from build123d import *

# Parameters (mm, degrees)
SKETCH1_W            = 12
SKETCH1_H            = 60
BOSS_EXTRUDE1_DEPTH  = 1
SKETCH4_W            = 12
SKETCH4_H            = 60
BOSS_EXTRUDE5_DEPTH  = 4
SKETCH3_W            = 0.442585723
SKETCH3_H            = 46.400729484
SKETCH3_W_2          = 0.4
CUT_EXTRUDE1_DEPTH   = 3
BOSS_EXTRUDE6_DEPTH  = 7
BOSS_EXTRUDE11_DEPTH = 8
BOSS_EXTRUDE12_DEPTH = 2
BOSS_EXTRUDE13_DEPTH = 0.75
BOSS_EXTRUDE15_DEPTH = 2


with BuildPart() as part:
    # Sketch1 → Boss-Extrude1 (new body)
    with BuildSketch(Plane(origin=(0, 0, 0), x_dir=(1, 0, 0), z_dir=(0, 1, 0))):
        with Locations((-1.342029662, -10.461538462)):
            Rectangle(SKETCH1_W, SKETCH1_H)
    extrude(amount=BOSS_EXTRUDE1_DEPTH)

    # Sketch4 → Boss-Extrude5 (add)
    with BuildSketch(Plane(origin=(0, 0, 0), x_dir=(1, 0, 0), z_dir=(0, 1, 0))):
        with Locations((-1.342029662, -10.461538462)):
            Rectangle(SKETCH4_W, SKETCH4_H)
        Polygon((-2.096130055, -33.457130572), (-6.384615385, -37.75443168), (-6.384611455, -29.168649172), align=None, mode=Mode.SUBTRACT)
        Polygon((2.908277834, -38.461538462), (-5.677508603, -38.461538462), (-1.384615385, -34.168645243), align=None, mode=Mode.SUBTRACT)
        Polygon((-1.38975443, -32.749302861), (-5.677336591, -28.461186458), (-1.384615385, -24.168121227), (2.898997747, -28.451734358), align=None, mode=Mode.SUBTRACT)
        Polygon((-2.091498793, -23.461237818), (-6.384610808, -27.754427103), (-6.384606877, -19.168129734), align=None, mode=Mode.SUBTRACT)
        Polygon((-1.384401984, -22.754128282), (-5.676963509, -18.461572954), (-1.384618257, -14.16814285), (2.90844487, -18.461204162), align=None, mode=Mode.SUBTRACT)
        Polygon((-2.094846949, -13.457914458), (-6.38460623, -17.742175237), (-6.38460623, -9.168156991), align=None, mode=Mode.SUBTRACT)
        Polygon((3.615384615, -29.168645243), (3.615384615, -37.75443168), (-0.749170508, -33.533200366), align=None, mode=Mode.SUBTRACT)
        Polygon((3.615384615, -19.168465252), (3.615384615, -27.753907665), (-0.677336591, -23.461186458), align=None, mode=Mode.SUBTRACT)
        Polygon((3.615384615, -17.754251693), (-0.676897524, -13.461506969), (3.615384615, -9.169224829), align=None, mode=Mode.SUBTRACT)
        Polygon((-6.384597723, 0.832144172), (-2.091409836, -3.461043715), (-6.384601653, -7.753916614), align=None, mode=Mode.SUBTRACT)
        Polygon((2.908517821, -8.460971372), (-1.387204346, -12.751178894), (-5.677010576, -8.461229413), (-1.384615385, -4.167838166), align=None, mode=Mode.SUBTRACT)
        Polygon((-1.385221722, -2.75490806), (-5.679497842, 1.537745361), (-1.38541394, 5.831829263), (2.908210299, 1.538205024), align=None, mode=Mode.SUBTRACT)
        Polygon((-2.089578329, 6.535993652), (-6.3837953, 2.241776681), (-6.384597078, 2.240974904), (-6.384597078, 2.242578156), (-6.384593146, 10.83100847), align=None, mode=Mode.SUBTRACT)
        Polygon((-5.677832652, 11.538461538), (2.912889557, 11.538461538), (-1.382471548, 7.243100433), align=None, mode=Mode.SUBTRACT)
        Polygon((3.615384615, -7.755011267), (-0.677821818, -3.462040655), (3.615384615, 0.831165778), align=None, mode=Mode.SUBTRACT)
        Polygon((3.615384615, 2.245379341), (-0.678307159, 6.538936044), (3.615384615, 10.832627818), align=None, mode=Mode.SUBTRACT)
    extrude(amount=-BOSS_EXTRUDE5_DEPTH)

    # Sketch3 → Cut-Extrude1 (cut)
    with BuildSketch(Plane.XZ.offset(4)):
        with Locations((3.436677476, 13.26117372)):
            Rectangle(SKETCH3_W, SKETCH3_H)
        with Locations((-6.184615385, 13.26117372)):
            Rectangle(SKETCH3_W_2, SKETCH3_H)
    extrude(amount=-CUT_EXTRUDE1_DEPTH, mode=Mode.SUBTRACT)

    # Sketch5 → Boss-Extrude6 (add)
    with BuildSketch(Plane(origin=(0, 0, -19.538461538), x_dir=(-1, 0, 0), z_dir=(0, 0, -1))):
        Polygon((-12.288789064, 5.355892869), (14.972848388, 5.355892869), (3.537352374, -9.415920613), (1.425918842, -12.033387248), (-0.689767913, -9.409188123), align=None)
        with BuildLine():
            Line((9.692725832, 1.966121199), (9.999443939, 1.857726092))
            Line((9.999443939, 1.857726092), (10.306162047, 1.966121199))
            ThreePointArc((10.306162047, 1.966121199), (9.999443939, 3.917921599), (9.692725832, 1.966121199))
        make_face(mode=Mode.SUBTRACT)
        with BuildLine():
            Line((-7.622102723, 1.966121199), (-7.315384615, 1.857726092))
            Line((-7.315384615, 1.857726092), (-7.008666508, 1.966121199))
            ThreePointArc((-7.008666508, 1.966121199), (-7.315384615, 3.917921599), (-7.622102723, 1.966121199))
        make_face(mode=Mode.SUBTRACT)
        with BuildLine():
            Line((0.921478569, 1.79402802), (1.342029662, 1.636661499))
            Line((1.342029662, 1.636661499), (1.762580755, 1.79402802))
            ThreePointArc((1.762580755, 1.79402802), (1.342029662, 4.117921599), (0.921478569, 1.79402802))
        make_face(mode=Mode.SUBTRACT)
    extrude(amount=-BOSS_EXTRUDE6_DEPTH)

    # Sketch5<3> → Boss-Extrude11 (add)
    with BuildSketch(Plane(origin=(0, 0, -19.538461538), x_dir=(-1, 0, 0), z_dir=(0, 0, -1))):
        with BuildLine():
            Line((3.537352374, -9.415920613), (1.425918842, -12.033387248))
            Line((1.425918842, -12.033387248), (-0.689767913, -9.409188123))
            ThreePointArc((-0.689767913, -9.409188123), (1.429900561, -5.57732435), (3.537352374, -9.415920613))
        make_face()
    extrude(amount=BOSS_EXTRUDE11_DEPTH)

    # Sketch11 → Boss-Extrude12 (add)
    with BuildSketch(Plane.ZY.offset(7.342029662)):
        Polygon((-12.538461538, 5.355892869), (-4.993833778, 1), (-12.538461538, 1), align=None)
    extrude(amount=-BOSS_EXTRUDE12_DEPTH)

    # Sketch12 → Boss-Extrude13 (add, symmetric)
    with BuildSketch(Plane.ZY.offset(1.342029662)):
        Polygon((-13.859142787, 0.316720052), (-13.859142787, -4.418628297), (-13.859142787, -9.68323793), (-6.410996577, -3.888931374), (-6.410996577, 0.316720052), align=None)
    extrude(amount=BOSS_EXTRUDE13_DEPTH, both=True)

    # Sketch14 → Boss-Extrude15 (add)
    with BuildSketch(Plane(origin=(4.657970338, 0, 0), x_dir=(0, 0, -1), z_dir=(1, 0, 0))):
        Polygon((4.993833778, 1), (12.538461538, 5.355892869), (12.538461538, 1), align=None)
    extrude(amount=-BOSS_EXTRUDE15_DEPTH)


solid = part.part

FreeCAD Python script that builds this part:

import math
import FreeCAD as App
import Part
import Sketcher

V = App.Vector
Q = App.Units.Quantity


def add_polygon(sketch, points):
    """Adds a closed chain of lines whose ends are joined by coincident constraints."""
    first, n = sketch.GeometryCount, len(points)
    for a, b in zip(points, points[1:] + points[:1]):
        sketch.addGeometry(Part.LineSegment(App.Vector(*a, 0), App.Vector(*b, 0)), False)
    for i in range(n):
        sketch.addConstraint(Sketcher.Constraint("Coincident", first + i, 2, first + (i + 1) % n, 1))

doc = App.newDocument("Part")
params = doc.addObject("Spreadsheet::Sheet", "Params")
for row, (alias, value) in enumerate([
    ("sketch1_width", "12 mm"),
    ("sketch1_height", "60 mm"),
    ("pad1_length", "1 mm"),
    ("sketch2_width", "12 mm"),
    ("sketch2_height", "60 mm"),
    ("pad2_length", "4 mm"),
    ("sketch3_width", "0.4 mm"),
    ("pocket1_length", "3 mm"),
    ("sketch4_radius", "1 mm"),
    ("sketch4_radius2", "1.2 mm"),
    ("pad3_length", "7 mm"),
    ("sketch5_radius", "2.5 mm"),
    ("pad4_length", "8 mm"),
    ("pad5_length", "2 mm"),
    ("pad6_length", "1.5 mm"),
    ("pad7_length", "2 mm"),
], start=1):
    params.set(f"A{row}", alias)
    params.set(f"B{row}", "=" + value)
    params.setAlias(f"B{row}", alias)

body = doc.addObject("PartDesign::Body", "Body")

# Sketch on XZ plane
sketch1 = body.newObject("Sketcher::SketchObject", "Sketch")
sketch1.AttachmentSupport = (doc.getObject("XZ_Plane"), [""])
sketch1.MapMode = "FlatFace"
add_polygon(sketch1, [(-7, -20), (-7, 40), (5, 40), (5, -20)])  # lines 0-3
sketch1.addConstraint([
    Sketcher.Constraint("Vertical", 0),
    Sketcher.Constraint("Horizontal", 1),
    Sketcher.Constraint("Vertical", 2),
    Sketcher.Constraint("Horizontal", 3),
    Sketcher.Constraint("DistanceX", 1, 1, 1, 2, Q("12 mm")),
    Sketcher.Constraint("DistanceY", 0, 1, 0, 2, Q("60 mm")),
    Sketcher.Constraint("DistanceX", 0, 2, -1, 1, Q("7.34203 mm")),
    Sketcher.Constraint("DistanceY", -1, 1, 0, 2, Q("40.461538 mm")),
])
sketch1.setExpression("Constraints[8]", "Params.sketch1_width")
sketch1.setExpression("Constraints[9]", "Params.sketch1_height")
pad1 = body.newObject("PartDesign::Pad", "Pad")
pad1.Profile = sketch1
pad1.setExpression("Length", "Params.pad1_length")
pad1.Reversed = True

# Sketch on XZ plane
sketch2 = body.newObject("Sketcher::SketchObject", "Sketch001")
sketch2.AttachmentSupport = (doc.getObject("XZ_Plane"), [""])
sketch2.MapMode = "FlatFace"
add_polygon(sketch2, [(-7.342, -19.5385), (-7.342, 40.4615), (4.658, 40.4615), (4.658, -19.5385)])  # lines 0-3
add_polygon(sketch2, [(-6.3846, 29.1686), (-2.0961, 33.4571), (-6.3846, 37.7544)])  # lines 4-6
add_polygon(sketch2, [(2.899, 28.4517), (-1.3898, 32.7493), (-5.6773, 28.4612), (-1.3846, 24.1681)])  # lines 7-10
add_polygon(sketch2, [(-6.3846, 19.1681), (-2.0915, 23.4612), (-6.3846, 27.7544)])  # lines 11-13
add_polygon(sketch2, [(-1.3846, 34.1686), (2.9083, 38.4615), (-5.6775, 38.4615)])  # lines 14-16
add_polygon(sketch2, [(-0.7492, 33.5332), (3.6154, 29.1686), (3.6154, 37.7544)])  # lines 17-19
add_polygon(sketch2, [(2.9084, 18.4612), (-1.3844, 22.7541), (-5.677, 18.4616), (-1.3846, 14.1681)])  # lines 20-23
add_polygon(sketch2, [(-0.6773, 23.4612), (3.6154, 19.1685), (3.6154, 27.7539)])  # lines 24-26
add_polygon(sketch2, [(3.6154, 9.1692), (3.6154, 17.7543), (-0.6769, 13.4615)])  # lines 27-29
add_polygon(sketch2, [(-6.3846, 9.1682), (-2.0948, 13.4579), (-6.3846, 17.7422)])  # lines 30-32
add_polygon(sketch2, [(-6.3846, 7.7539), (-6.3846, -0.8321), (-2.0914, 3.461)])  # lines 33-35
add_polygon(sketch2, [(-6.3846, -10.831), (-2.0896, -6.536), (-6.3838, -2.2418), (-6.3846, -2.241), (-6.3846, -2.2426)])  # lines 36-40
add_polygon(sketch2, [(2.9082, -1.5382), (-1.3852, 2.7549), (-5.6795, -1.5377), (-1.3854, -5.8318)])  # lines 41-44
add_polygon(sketch2, [(-1.3846, 4.1678), (2.9085, 8.461), (-1.3872, 12.7512), (-5.677, 8.4612)])  # lines 45-48
add_polygon(sketch2, [(3.6154, -0.8312), (3.6154, 7.755), (-0.6778, 3.462)])  # lines 49-51
add_polygon(sketch2, [(-1.3825, -7.2431), (-5.6778, -11.5385), (2.9129, -11.5385)])  # lines 52-54
add_polygon(sketch2, [(3.6154, -10.8326), (3.6154, -2.2454), (-0.6783, -6.5389)])  # lines 55-57
sketch2.addConstraint([
    Sketcher.Constraint("Vertical", 0),
    Sketcher.Constraint("Horizontal", 1),
    Sketcher.Constraint("Vertical", 2),
    Sketcher.Constraint("Horizontal", 3),
    Sketcher.Constraint("Horizontal", 15),
    Sketcher.Constraint("Vertical", 18),
    Sketcher.Constraint("Vertical", 25),
    Sketcher.Constraint("Vertical", 27),
    Sketcher.Constraint("Vertical", 32),
    Sketcher.Constraint("Vertical", 39),
    Sketcher.Constraint("Vertical", 49),
    Sketcher.Constraint("Horizontal", 53),
    Sketcher.Constraint("Vertical", 55),
    Sketcher.Constraint("Parallel", 5, 7),
    Sketcher.Constraint("Parallel", 4, 10),
    Sketcher.Constraint("Parallel", 10, 11),
    Sketcher.Constraint("Parallel", 6, 13),
    Sketcher.Constraint("Parallel", 11, 14),
    Sketcher.Constraint("Perpendicular", 14, 16),
    Sketcher.Constraint("Parallel", 16, 17),
    Sketcher.Constraint("Parallel", 12, 20),
    Sketcher.Constraint("Perpendicular", 17, 21),
    Sketcher.Constraint("Parallel", 21, 23),
    Sketcher.Constraint("Perpendicular", 23, 24),
    Sketcher.Constraint("Perpendicular", 24, 26),
    Sketcher.Constraint("Perpendicular", 26, 29),
    Sketcher.Constraint("Perpendicular", 29, 30),
    Sketcher.Constraint("Parallel", 13, 33),
    Sketcher.Constraint("Parallel", 30, 34),
    Sketcher.Constraint("Parallel", 34, 36),
    Sketcher.Constraint("Perpendicular", 36, 37),
    Sketcher.Constraint("Parallel", 37, 38),
    Sketcher.Constraint("Parallel", 33, 40),
    Sketcher.Constraint("Parallel", 35, 41),
    Sketcher.Constraint("Parallel", 37, 43),
    Sketcher.Constraint("Perpendicular", 43, 44),
    Sketcher.Constraint("Parallel", 44, 45),
    Sketcher.Constraint("Parallel", 31, 46),
    Sketcher.Constraint("Perpendicular", 45, 51),
    Sketcher.Constraint("Perpendicular", 51, 52),
    Sketcher.Constraint("Perpendicular", 52, 54),
    Sketcher.Constraint("Parallel", 54, 57),
    Sketcher.Constraint("Horizontal", 5, 2, 18, 2),
    Sketcher.Constraint("Vertical", 6, 2, 12, 2),
    Sketcher.Constraint("Vertical", 9, 2, 16, 2),
    Sketcher.Constraint("Vertical", 18, 2, 24, 2),
    Sketcher.Constraint("Vertical", 25, 2, 27, 2),
    Sketcher.Constraint("Vertical", 13, 2, 31, 2),
    Sketcher.Constraint("Vertical", 33, 2, 38, 2),
    Sketcher.Constraint("Vertical", 16, 2, 48, 2),
    Sketcher.Constraint("Vertical", 29, 2, 49, 2),
    Sketcher.Constraint("Vertical", 51, 2, 55, 2),
    Sketcher.Constraint("Equal", 15, 18),
    Sketcher.Constraint("Equal", 9, 14),
    Sketcher.Constraint("Equal", 14, 16),
    Sketcher.Constraint("Equal", 16, 48),
    Sketcher.Constraint("Equal", 44, 56),
    Sketcher.Constraint("DistanceX", 1, 1, 1, 2, Q("12 mm")),
    Sketcher.Constraint("DistanceY", 0, 1, 0, 2, Q("60 mm")),
    Sketcher.Constraint("DistanceX", 5, 2, 9, 2, Q("5 mm")),
    Sketcher.Constraint("DistanceY", 14, 2, 1, 2, Q("2 mm")),
    Sketcher.Constraint("DistanceX", 16, 2, 17, 2, Q("5 mm")),
    Sketcher.Constraint("DistanceY", 17, 2, 16, 2, Q("5 mm")),
    Sketcher.Constraint("DistanceY", 3, 2, 52, 2, Q("8 mm")),
    Sketcher.Constraint("DistanceY", 13, 2, 20, 2, Q("3.585999 mm")),
    Sketcher.Constraint("Distance", 44, Q("6.072102 mm")),
    Sketcher.Constraint("DistanceY", 32, 2, 32, 1, Q("8.574018 mm")),
    Sketcher.Constraint("DistanceX", 11, 2, -1, 1, Q("2.091499 mm")),
    Sketcher.Constraint("DistanceY", -1, 1, 19, 2, Q("33.5332 mm")),
    Sketcher.Constraint("DistanceX", 20, 2, -1, 1, Q("1.384402 mm")),
    Sketcher.Constraint("DistanceX", 35, 2, -1, 1, Q("6.384602 mm")),
    Sketcher.Constraint("DistanceY", 54, 2, -1, 1, Q("7.2431 mm")),
    Sketcher.Constraint("DistanceX", 0, 2, 4, 2, Q("5.2459 mm")),
    Sketcher.Constraint("DistanceY", 4, 2, 5, 2, Q("4.297301 mm")),
    Sketcher.Constraint("DistanceY", 20, 2, 12, 2, Q("5.000299 mm")),
    Sketcher.Constraint("DistanceX", 20, 2, 10, 2, Q("4.2834 mm")),
    Sketcher.Constraint("DistanceY", 33, 2, 32, 2, Q("10.000301 mm")),
    Sketcher.Constraint("DistanceX", 33, 2, 28, 2, Q("5.7077 mm")),
    Sketcher.Constraint("DistanceX", 38, 2, 37, 2, Q("0.000802 mm")),
    Sketcher.Constraint("DistanceY", 39, 2, 37, 2, Q("0.000801 mm")),
    Sketcher.Constraint("DistanceX", 38, 2, 42, 2, Q("0.705099 mm")),
    Sketcher.Constraint("DistanceY", 42, 2, 33, 2, Q("0.705601 mm")),
    Sketcher.Constraint("DistanceX", 32, 2, 46, 2, Q("4.997402 mm")),
    Sketcher.Constraint("DistanceX", 47, 2, 34, 2, Q("3.585601 mm")),
    Sketcher.Constraint("DistanceX", 41, 2, 50, 2, Q("0.7074 mm")),
    Sketcher.Constraint("DistanceX", 43, 2, 51, 2, Q("5.000799 mm")),
    Sketcher.Constraint("DistanceY", 57, 2, 43, 2, Q("5.000799 mm")),
    Sketcher.Constraint("Distance", 4, Q("6.064829 mm")),
    Sketcher.Constraint("Distance", 5, Q("6.071071 mm")),
    Sketcher.Constraint("Distance", 7, Q("6.071449 mm")),
    Sketcher.Constraint("Distance", 11, Q("6.071372 mm")),
    Sketcher.Constraint("Distance", 22, Q("6.07106 mm")),
    Sketcher.Constraint("Distance", 28, Q("6.070531 mm")),
    Sketcher.Constraint("Distance", 33, Q("8.586061 mm")),
    Sketcher.Constraint("Distance", 36, Q("6.074068 mm")),
    Sketcher.Constraint("Distance", 46, Q("6.07117 mm")),
    Sketcher.Constraint("Distance", 51, Q("6.071511 mm")),
    Sketcher.Constraint("DistanceX", 15, 2, 15, 1, Q("8.585786 mm")),
    Sketcher.Constraint("DistanceX", 53, 1, 53, 2, Q("8.590722 mm")),
    Sketcher.Constraint("DistanceY", 25, 1, 25, 2, Q("8.585442 mm")),
    Sketcher.Constraint("DistanceY", 49, 1, 49, 2, Q("8.586177 mm")),
    Sketcher.Constraint("DistanceY", -1, 1, 9, 2, Q("24.168121 mm")),
    Sketcher.Constraint("DistanceY", -1, 1, 13, 2, Q("19.16813 mm")),
    Sketcher.Constraint("DistanceX", 22, 2, -1, 1, Q("1.384618 mm")),
    Sketcher.Constraint("DistanceY", -1, 1, 27, 2, Q("17.754252 mm")),
    Sketcher.Constraint("DistanceX", 34, 2, -1, 1, Q("2.09141 mm")),
    Sketcher.Constraint("DistanceY", 39, 2, -1, 1, Q("2.242578 mm")),
    Sketcher.Constraint("DistanceY", -1, 1, 41, 2, Q("2.754908 mm")),
    Sketcher.Constraint("DistanceY", -1, 1, 45, 2, Q("8.460971 mm")),
    Sketcher.Constraint("DistanceY", -1, 1, 46, 2, Q("12.751179 mm")),
    Sketcher.Constraint("DistanceY", -1, 1, 49, 2, Q("7.755011 mm")),
    Sketcher.Constraint("DistanceX", -1, 1, 53, 2, Q("2.91289 mm")),
    Sketcher.Constraint("DistanceX", 5, 2, 8, 2, Q("0.707279 mm")),
    Sketcher.Constraint("DistanceX", 21, 2, 20, 2, Q("4.292562 mm")),
    Sketcher.Constraint("DistanceY", 23, 2, 24, 2, Q("0.707261 mm")),
    Sketcher.Constraint("DistanceX", 36, 2, 56, 2, Q("1.411271 mm")),
])
sketch2.setExpression("Constraints[115]", "Params.sketch2_width")
sketch2.setExpression("Constraints[116]", "Params.sketch2_height")
pad2 = body.newObject("PartDesign::Pad", "Pad001")
pad2.Profile = sketch2
pad2.setExpression("Length", "Params.pad2_length")

# Sketch on XZ plane
sketch3 = body.newObject("Sketcher::SketchObject", "Sketch002")
sketch3.AttachmentSupport = (doc.getObject("XZ_Plane"), [""])
sketch3.MapMode = "FlatFace"
sketch3.AttachmentOffset = App.Placement(V(0, 0, 4), App.Rotation())
add_polygon(sketch3, [(3.22, 36.46), (3.22, -9.94), (3.66, -9.94), (3.66, 36.46)])  # lines 0-3
add_polygon(sketch3, [(-6.38, 36.46), (-6.38, -9.94), (-5.98, -9.94), (-5.98, 36.46)])  # lines 4-7
sketch3.addConstraint([
    Sketcher.Constraint("Vertical", 0),
    Sketcher.Constraint("Horizontal", 1),
    Sketcher.Constraint("Vertical", 2),
    Sketcher.Constraint("Horizontal", 3),
    Sketcher.Constraint("Vertical", 4),
    Sketcher.Constraint("Horizontal", 5),
    Sketcher.Constraint("Vertical", 6),
    Sketcher.Constraint("Horizontal", 7),
    Sketcher.Constraint("Horizontal", 1, 2, 4, 2),
    Sketcher.Constraint("Horizontal", 3, 2, 6, 2),
    Sketcher.Constraint("DistanceX", 5, 1, 5, 2, Q("0.4 mm")),
    Sketcher.Constraint("DistanceX", 4, 2, 0, 2, Q("9.6 mm")),
    Sketcher.Constraint("DistanceY", 0, 2, 0, 1, Q("46.400729 mm")),
    Sketcher.Constraint("DistanceX", 1, 1, 1, 2, Q("0.442586 mm")),
    Sketcher.Constraint("DistanceY", 0, 2, -1, 1, Q("9.939191 mm")),
    Sketcher.Constraint("DistanceX", -1, 1, 1, 2, Q("3.65797 mm")),
])
sketch3.setExpression("Constraints[18]", "Params.sketch3_width")
pocket1 = body.newObject("PartDesign::Pocket", "Pocket")
pocket1.Profile = sketch3
pocket1.setExpression("Length", "Params.pocket1_length")

# Sketch on XY plane
sketch4 = body.newObject("Sketcher::SketchObject", "Sketch003")
sketch4.AttachmentSupport = (doc.getObject("XY_Plane"), [""])
sketch4.MapMode = "FlatFace"
sketch4.AttachmentOffset = App.Placement(V(0, 0, -19.538462), App.Rotation())
add_polygon(sketch4, [(-14.97, 5.36), (12.29, 5.36), (0.69, -9.41), (-1.43, -12.03), (-3.54, -9.42)])  # lines 0-4
sketch4.addGeometry(Part.ArcOfCircle(Part.Circle(V(-10, 2.92, 0), V(0, 0, 1), 1), math.radians(-72), math.radians(252)), False)  # 5
sketch4.addGeometry(Part.LineSegment(V(-10.31, 1.97, 0), V(-10, 1.86, 0)), False)  # 6
sketch4.addGeometry(Part.LineSegment(V(-10, 1.86, 0), V(-9.69, 1.97, 0)), False)  # 7
sketch4.addGeometry(Part.ArcOfCircle(Part.Circle(V(-1.34, 2.92, 0), V(0, 0, 1), 1.2), math.radians(-69), math.radians(249)), False)  # 8
sketch4.addGeometry(Part.LineSegment(V(-1.76, 1.79, 0), V(-1.34, 1.64, 0)), False)  # 9
sketch4.addGeometry(Part.LineSegment(V(-1.34, 1.64, 0), V(-0.92, 1.79, 0)), False)  # 10
sketch4.addGeometry(Part.ArcOfCircle(Part.Circle(V(7.32, 2.92, 0), V(0, 0, 1), 1), math.radians(-72), math.radians(252)), False)  # 11
sketch4.addGeometry(Part.LineSegment(V(7.01, 1.97, 0), V(7.32, 1.86, 0)), False)  # 12
sketch4.addGeometry(Part.LineSegment(V(7.32, 1.86, 0), V(7.62, 1.97, 0)), False)  # 13
sketch4.addConstraint([
    Sketcher.Constraint("Coincident", 5, 2, 6, 1),
    Sketcher.Constraint("Coincident", 6, 2, 7, 1),
    Sketcher.Constraint("Coincident", 7, 2, 5, 1),
    Sketcher.Constraint("Tangent", 8, 2, 9, 1),
    Sketcher.Constraint("Coincident", 9, 2, 10, 1),
    Sketcher.Constraint("Tangent", 10, 2, 8, 1),
    Sketcher.Constraint("Coincident", 11, 2, 12, 1),
    Sketcher.Constraint("Coincident", 12, 2, 13, 1),
    Sketcher.Constraint("Coincident", 13, 2, 11, 1),
    Sketcher.Constraint("Horizontal", 0),
    Sketcher.Constraint("Equal", 5, 11),
    Sketcher.Constraint("Parallel", 6, 12),
    Sketcher.Constraint("Parallel", 7, 13),
    Sketcher.Constraint("Horizontal", 5, 3, 8, 3),
    Sketcher.Constraint("Horizontal", 8, 3, 11, 3),
    Sketcher.Constraint("Horizontal", 5, 2, 7, 2),
    Sketcher.Constraint("Horizontal", 8, 2, 10, 2),
    Sketcher.Constraint("Horizontal", 7, 2, 11, 2),
    Sketcher.Constraint("Horizontal", 6, 2, 12, 2),
    Sketcher.Constraint("Vertical", 5, 3, 6, 2),
    Sketcher.Constraint("Radius", 5, Q("1 mm")),
    Sketcher.Constraint("Radius", 8, Q("1.2 mm")),
    Sketcher.Constraint("DistanceY", 2, 2, 1, 2, Q("2.624199 mm")),
    Sketcher.Constraint("DistanceY", 5, 2, 5, 3, Q("0.9518 mm")),
    Sketcher.Constraint("DistanceY", 8, 2, 6, 2, Q("0.063698 mm")),
    Sketcher.Constraint("Distance", 1, Q("18.776179 mm")),
    Sketcher.Constraint("Distance", 2, Q("3.370838 mm")),
    Sketcher.Constraint("Distance", 6, Q("0.325308 mm")),
    Sketcher.Constraint("DistanceX", 0, 1, 0, 2, Q("27.261637 mm")),
    Sketcher.Constraint("DistanceY", -1, 1, 5, 3, Q("2.917922 mm")),
    Sketcher.Constraint("DistanceX", 8, 3, -1, 1, Q("1.34203 mm")),
    Sketcher.Constraint("DistanceX", -1, 1, 0, 2, Q("12.288789 mm")),
    Sketcher.Constraint("DistanceY", 1, 2, -1, 1, Q("9.409188 mm")),
    Sketcher.Constraint("DistanceX", 2, 2, -1, 1, Q("1.425919 mm")),
    Sketcher.Constraint("DistanceY", 3, 2, -1, 1, Q("9.415921 mm")),
    Sketcher.Constraint("DistanceX", 5, 3, 11, 3, Q("17.314829 mm")),
    Sketcher.Constraint("DistanceX", 5, 3, 1, 2, Q("10.689212 mm")),
    Sketcher.Constraint("DistanceX", 3, 2, 1, 2, Q("4.22712 mm")),
])
sketch4.setExpression("Constraints[25]", "Params.sketch4_radius")
sketch4.setExpression("Constraints[26]", "Params.sketch4_radius2")
pad3 = body.newObject("PartDesign::Pad", "Pad002")
pad3.Profile = sketch4
pad3.setExpression("Length", "Params.pad3_length")

# Sketch on XY plane
sketch5 = body.newObject("Sketcher::SketchObject", "Sketch004")
sketch5.AttachmentSupport = (doc.getObject("XY_Plane"), [""])
sketch5.MapMode = "FlatFace"
sketch5.AttachmentOffset = App.Placement(V(0, 0, -19.538462), App.Rotation())
sketch5.addGeometry([
    Part.LineSegment(V(-1.4, -12, 0), V(-3.5, -9.4, 0)),
    Part.ArcOfCircle(Part.Circle(V(-1.4, -8.1, 0), V(0, 0, 1), 2.5), math.radians(-32), math.radians(212)),
    Part.LineSegment(V(0.7, -9.4, 0), V(-1.4, -12, 0)),
], False)
sketch5.addConstraint([
    Sketcher.Constraint("Coincident", 0, 2, 1, 2),
    Sketcher.Constraint("Coincident", 1, 1, 2, 1),
    Sketcher.Constraint("Coincident", 2, 2, 0, 1),
    Sketcher.Constraint("Vertical", 1, 3, 2, 2),
    Sketcher.Constraint("Radius", 1, Q("2.5 mm")),
    Sketcher.Constraint("DistanceY", 0, 2, 1, 3, Q("1.338599 mm")),
    Sketcher.Constraint("DistanceY", 2, 2, 1, 1, Q("2.624199 mm")),
    Sketcher.Constraint("Distance", 2, Q("3.370838 mm")),
    Sketcher.Constraint("DistanceX", 1, 3, -1, 1, Q("1.425919 mm")),
    Sketcher.Constraint("DistanceY", 1, 3, -1, 1, Q("8.077321 mm")),
])
sketch5.setExpression("Constraints[4]", "Params.sketch5_radius")
pad4 = body.newObject("PartDesign::Pad", "Pad003")
pad4.Profile = sketch5
pad4.setExpression("Length", "Params.pad4_length")
pad4.Reversed = True

# Sketch on YZ plane
sketch6 = body.newObject("Sketcher::SketchObject", "Sketch005")
sketch6.AttachmentSupport = (doc.getObject("YZ_Plane"), [""])
sketch6.MapMode = "FlatFace"
sketch6.AttachmentOffset = App.Placement(V(0, 0, -7.34203), App.Rotation())
add_polygon(sketch6, [(1, -5), (5.4, -12.5), (1, -12.5)])  # lines 0-2
sketch6.addConstraint([
    Sketcher.Constraint("Horizontal", 1),
    Sketcher.Constraint("Vertical", 2),
    Sketcher.Constraint("Angle", 0, Q("-60 deg")),
    Sketcher.Constraint("DistanceX", -1, 1, 1, 2, Q("1 mm")),
    Sketcher.Constraint("DistanceX", 1, 2, 1, 1, Q("4.355893 mm")),
    Sketcher.Constraint("DistanceY", 0, 2, -1, 1, Q("12.538462 mm")),
])
pad5 = body.newObject("PartDesign::Pad", "Pad004")
pad5.Profile = sketch6
pad5.setExpression("Length", "Params.pad5_length")

# Sketch on YZ plane
sketch7 = body.newObject("Sketcher::SketchObject", "Sketch006")
sketch7.AttachmentSupport = (doc.getObject("YZ_Plane"), [""])
sketch7.MapMode = "FlatFace"
sketch7.AttachmentOffset = App.Placement(V(0, 0, -1.34203), App.Rotation())
add_polygon(sketch7, [(0.3, -13.9), (-9.7, -13.9), (-3.9, -6.4), (0.3, -6.4)])  # lines 0-3
sketch7.addConstraint([
    Sketcher.Constraint("Horizontal", 0),
    Sketcher.Constraint("Horizontal", 2),
    Sketcher.Constraint("Vertical", 3),
    Sketcher.Constraint("DistanceX", 2, 1, 2, 2, Q("4.205651 mm")),
    Sketcher.Constraint("Distance", 1, Q("9.436571 mm")),
    Sketcher.Constraint("DistanceX", 0, 2, 0, 1, Q("9.999958 mm")),
    Sketcher.Constraint("DistanceX", 1, 2, -1, 1, Q("3.888931 mm")),
    Sketcher.Constraint("DistanceY", 0, 2, -1, 1, Q("13.859143 mm")),
])
pad6 = body.newObject("PartDesign::Pad", "Pad005")
pad6.Profile = sketch7
pad6.setExpression("Length", "Params.pad6_length")
pad6.Midplane = True

# Sketch on YZ plane
sketch8 = body.newObject("Sketcher::SketchObject", "Sketch007")
sketch8.AttachmentSupport = (doc.getObject("YZ_Plane"), [""])
sketch8.MapMode = "FlatFace"
sketch8.AttachmentOffset = App.Placement(V(0, 0, 4.65797), App.Rotation())
add_polygon(sketch8, [(5.4, -12.5), (1, -5), (1, -12.5)])  # lines 0-2
sketch8.addConstraint([
    Sketcher.Constraint("Vertical", 1),
    Sketcher.Constraint("Horizontal", 2),
    Sketcher.Constraint("Angle", 0, Q("120 deg")),
    Sketcher.Constraint("DistanceX", -1, 1, 0, 2, Q("1 mm")),
    Sketcher.Constraint("DistanceX", 2, 1, 2, 2, Q("4.355893 mm")),
    Sketcher.Constraint("DistanceY", 1, 2, -1, 1, Q("12.538462 mm")),
])
pad7 = body.newObject("PartDesign::Pad", "Pad006")
pad7.Profile = sketch8
pad7.setExpression("Length", "Params.pad7_length")
pad7.Reversed = True

doc.recompute()
